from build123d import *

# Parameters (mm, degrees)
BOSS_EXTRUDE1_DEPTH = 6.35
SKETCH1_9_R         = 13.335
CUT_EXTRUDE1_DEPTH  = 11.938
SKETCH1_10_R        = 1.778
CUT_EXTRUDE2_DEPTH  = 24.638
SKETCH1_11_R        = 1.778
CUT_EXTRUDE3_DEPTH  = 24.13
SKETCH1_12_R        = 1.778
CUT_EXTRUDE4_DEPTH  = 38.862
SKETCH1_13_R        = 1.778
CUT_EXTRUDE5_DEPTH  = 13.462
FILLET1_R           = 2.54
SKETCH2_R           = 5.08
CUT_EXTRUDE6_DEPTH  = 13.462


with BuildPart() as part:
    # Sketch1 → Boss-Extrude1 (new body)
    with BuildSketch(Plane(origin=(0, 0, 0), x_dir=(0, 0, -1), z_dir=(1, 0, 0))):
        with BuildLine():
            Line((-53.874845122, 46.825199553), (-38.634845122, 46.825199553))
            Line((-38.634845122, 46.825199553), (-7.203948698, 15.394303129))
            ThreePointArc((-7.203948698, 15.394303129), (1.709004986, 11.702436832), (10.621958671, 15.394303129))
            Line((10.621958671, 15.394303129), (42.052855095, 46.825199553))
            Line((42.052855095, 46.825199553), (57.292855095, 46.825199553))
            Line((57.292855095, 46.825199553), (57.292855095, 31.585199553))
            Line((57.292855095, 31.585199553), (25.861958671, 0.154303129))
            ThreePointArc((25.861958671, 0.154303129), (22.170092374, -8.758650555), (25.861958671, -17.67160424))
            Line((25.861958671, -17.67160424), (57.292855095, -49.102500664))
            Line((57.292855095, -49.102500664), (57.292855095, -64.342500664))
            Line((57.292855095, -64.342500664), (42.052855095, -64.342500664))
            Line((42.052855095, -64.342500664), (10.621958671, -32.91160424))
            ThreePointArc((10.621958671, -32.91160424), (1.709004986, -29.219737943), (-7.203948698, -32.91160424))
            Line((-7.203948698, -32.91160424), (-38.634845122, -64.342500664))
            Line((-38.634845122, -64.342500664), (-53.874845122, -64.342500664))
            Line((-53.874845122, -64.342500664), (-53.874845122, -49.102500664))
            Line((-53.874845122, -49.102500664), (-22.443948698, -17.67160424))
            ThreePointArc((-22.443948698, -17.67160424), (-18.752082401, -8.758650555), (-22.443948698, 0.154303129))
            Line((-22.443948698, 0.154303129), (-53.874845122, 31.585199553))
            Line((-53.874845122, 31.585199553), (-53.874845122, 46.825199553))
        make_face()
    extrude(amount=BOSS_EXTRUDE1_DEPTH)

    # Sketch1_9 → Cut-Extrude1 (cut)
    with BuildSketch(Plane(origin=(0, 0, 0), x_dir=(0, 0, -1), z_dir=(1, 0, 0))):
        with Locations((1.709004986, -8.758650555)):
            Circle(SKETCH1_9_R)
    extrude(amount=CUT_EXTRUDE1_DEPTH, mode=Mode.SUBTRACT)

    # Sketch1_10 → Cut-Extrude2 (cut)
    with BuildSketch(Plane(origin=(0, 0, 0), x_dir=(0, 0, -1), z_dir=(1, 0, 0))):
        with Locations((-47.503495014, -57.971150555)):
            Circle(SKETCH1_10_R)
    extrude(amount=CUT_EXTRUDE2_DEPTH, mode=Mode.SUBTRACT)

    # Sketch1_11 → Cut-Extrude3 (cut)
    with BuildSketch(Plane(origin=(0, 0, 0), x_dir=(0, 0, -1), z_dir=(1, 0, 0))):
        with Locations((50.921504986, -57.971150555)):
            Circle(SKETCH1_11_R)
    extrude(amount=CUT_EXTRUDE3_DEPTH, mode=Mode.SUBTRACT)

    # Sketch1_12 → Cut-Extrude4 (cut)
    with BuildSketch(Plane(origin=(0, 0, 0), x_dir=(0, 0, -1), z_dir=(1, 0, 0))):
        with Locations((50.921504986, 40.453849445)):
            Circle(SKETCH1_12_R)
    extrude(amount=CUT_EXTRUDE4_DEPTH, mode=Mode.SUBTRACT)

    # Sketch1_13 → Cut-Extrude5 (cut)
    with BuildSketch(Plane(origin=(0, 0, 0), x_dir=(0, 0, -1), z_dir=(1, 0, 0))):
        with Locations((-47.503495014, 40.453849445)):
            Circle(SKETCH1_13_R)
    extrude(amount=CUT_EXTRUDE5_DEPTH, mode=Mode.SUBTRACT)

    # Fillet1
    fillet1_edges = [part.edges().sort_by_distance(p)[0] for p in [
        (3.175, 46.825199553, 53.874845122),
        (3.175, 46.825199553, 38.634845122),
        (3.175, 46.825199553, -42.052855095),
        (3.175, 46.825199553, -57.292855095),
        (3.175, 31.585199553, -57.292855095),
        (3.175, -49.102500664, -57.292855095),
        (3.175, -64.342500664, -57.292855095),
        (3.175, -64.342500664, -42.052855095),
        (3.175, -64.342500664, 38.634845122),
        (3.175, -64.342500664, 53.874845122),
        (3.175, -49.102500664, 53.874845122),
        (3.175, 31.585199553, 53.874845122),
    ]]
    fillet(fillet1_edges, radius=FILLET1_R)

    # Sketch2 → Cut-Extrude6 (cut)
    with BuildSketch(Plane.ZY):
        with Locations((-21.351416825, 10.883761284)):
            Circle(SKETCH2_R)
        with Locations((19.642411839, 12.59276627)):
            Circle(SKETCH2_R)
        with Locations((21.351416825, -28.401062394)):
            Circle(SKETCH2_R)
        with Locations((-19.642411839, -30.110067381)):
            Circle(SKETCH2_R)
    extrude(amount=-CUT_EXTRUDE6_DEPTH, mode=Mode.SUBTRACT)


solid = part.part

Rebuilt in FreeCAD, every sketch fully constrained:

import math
import FreeCAD as App
import Part
import Sketcher
Q = App.Units.Quantity


def edges_at(feature, points):
    """Names of the edges that pass closest to the given points."""
    edges = feature.Shape.Edges
    near = lambda p: min(range(len(edges)), key=lambda i: edges[i].distToShape(Part.Vertex(*p))[0])
    return sorted({f"Edge{near(p) + 1}" for p in points})

doc = App.newDocument("Part")
params = doc.addObject("Spreadsheet::Sheet", "Params")
for row, (alias, value) in enumerate([
    ("sketch1_width", "0.6 in"),
    ("sketch1_length", "1.75 in"),
    ("pad1_length", "0.25 in"),
    ("sketch2_diameter", "1.05 in"),
    ("pocket1_length", "0.47 in"),
    ("sketch3_diameter", "0.14 in"),
    ("pocket2_length", "0.97 in"),
    ("sketch4_diameter", "0.14 in"),
    ("pocket3_length", "0.95 in"),
    ("sketch5_diameter", "0.14 in"),
    ("pocket4_length", "1.53 in"),
    ("sketch6_diameter", "0.14 in"),
    ("pocket5_length", "0.53 in"),
    ("fillet_radius", "0.1 in"),
    ("sketch7_diameter", "0.4 in"),
    ("pocket6_length", "0.53 in"),
], start=1):
    params.set(f"A{row}", alias)
    params.set(f"B{row}", "=" + value)
    params.setAlias(f"B{row}", alias)

body = doc.addObject("PartDesign::Body", "Body")

sketch1 = body.newObject("Sketcher::SketchObject", "Sketch")
sketch1.AttachmentSupport = (doc.getObject("YZ_Plane"), [""])
sketch1.MapMode = "FlatFace"
sketch1.addGeometry(Part.LineSegment(App.Vector(47, 39, 0), App.Vector(47, 54, 0)), False)
sketch1.addGeometry(Part.LineSegment(App.Vector(47, 54, 0), App.Vector(32, 54, 0)), False)
sketch1.addGeometry(Part.LineSegment(App.Vector(32, 54, 0), App.Vector(0, 22, 0)), False)
sketch1.addGeometry(Part.ArcOfCircle(Part.Circle(App.Vector(-9, 31, 0), App.Vector(0, 0, 1), 13), math.radians(-135), math.radians(-45)), False)
sketch1.addGeometry(Part.LineSegment(App.Vector(-18, 22, 0), App.Vector(-49, 54, 0)), False)
sketch1.addGeometry(Part.LineSegment(App.Vector(-49, 54, 0), App.Vector(-64, 54, 0)), False)
sketch1.addGeometry(Part.LineSegment(App.Vector(-64, 54, 0), App.Vector(-64, 39, 0)), False)
sketch1.addGeometry(Part.LineSegment(App.Vector(-64, 39, 0), App.Vector(-33, 7, 0)), False)
sketch1.addGeometry(Part.ArcOfCircle(Part.Circle(App.Vector(-42, -2, 0), App.Vector(0, 0, 1), 13), math.radians(-45), math.radians(45)), False)
sketch1.addGeometry(Part.LineSegment(App.Vector(-33, -11, 0), App.Vector(-64, -42, 0)), False)
sketch1.addGeometry(Part.LineSegment(App.Vector(-64, -42, 0), App.Vector(-64, -57, 0)), False)
sketch1.addGeometry(Part.LineSegment(App.Vector(-64, -57, 0), App.Vector(-49, -57, 0)), False)
sketch1.addGeometry(Part.LineSegment(App.Vector(-49, -57, 0), App.Vector(-18, -26, 0)), False)
sketch1.addGeometry(Part.ArcOfCircle(Part.Circle(App.Vector(-9, -35, 0), App.Vector(0, 0, 1), 13), math.radians(45), math.radians(135)), False)
sketch1.addGeometry(Part.LineSegment(App.Vector(0, -26, 0), App.Vector(32, -57, 0)), False)
sketch1.addGeometry(Part.LineSegment(App.Vector(32, -57, 0), App.Vector(47, -57, 0)), False)
sketch1.addGeometry(Part.LineSegment(App.Vector(47, -57, 0), App.Vector(47, -42, 0)), False)
sketch1.addGeometry(Part.LineSegment(App.Vector(47, -42, 0), App.Vector(15, -11, 0)), False)
sketch1.addGeometry(Part.ArcOfCircle(Part.Circle(App.Vector(24, -2, 0), App.Vector(0, 0, 1), 13), math.radians(135), math.radians(225)), False)
sketch1.addGeometry(Part.LineSegment(App.Vector(15, 7, 0), App.Vector(47, 39, 0)), False)
sketch1.addConstraint(Sketcher.Constraint("Coincident", 0, 2, 1, 1))
sketch1.addConstraint(Sketcher.Constraint("Coincident", 1, 2, 2, 1))
sketch1.addConstraint(Sketcher.Constraint("Tangent", 2, 2, 3, 2))
sketch1.addConstraint(Sketcher.Constraint("Tangent", 3, 1, 4, 1))
sketch1.addConstraint(Sketcher.Constraint("Coincident", 4, 2, 5, 1))
sketch1.addConstraint(Sketcher.Constraint("Coincident", 5, 2, 6, 1))
sketch1.addConstraint(Sketcher.Constraint("Coincident", 6, 2, 7, 1))
sketch1.addConstraint(Sketcher.Constraint("Tangent", 7, 2, 8, 2))
sketch1.addConstraint(Sketcher.Constraint("Tangent", 8, 1, 9, 1))
sketch1.addConstraint(Sketcher.Constraint("Coincident", 9, 2, 10, 1))
sketch1.addConstraint(Sketcher.Constraint("Coincident", 10, 2, 11, 1))
sketch1.addConstraint(Sketcher.Constraint("Coincident", 11, 2, 12, 1))
sketch1.addConstraint(Sketcher.Constraint("Tangent", 12, 2, 13, 2))
sketch1.addConstraint(Sketcher.Constraint("Tangent", 13, 1, 14, 1))
sketch1.addConstraint(Sketcher.Constraint("Coincident", 14, 2, 15, 1))
sketch1.addConstraint(Sketcher.Constraint("Coincident", 15, 2, 16, 1))
sketch1.addConstraint(Sketcher.Constraint("Coincident", 16, 2, 17, 1))
sketch1.addConstraint(Sketcher.Constraint("Tangent", 17, 2, 18, 2))
sketch1.addConstraint(Sketcher.Constraint("Tangent", 18, 1, 19, 1))
sketch1.addConstraint(Sketcher.Constraint("Coincident", 19, 2, 0, 1))
sketch1.addConstraint(Sketcher.Constraint("Vertical", 0))
sketch1.addConstraint(Sketcher.Constraint("Horizontal", 1))
sketch1.addConstraint(Sketcher.Constraint("Horizontal", 5))
sketch1.addConstraint(Sketcher.Constraint("Vertical", 6))
sketch1.addConstraint(Sketcher.Constraint("Vertical", 10))
sketch1.addConstraint(Sketcher.Constraint("Horizontal", 11))
sketch1.addConstraint(Sketcher.Constraint("Horizontal", 15))
sketch1.addConstraint(Sketcher.Constraint("Vertical", 16))
sketch1.addConstraint(Sketcher.Constraint("Equal", 3, 8))
sketch1.addConstraint(Sketcher.Constraint("Equal", 8, 13))
sketch1.addConstraint(Sketcher.Constraint("Equal", 13, 18))
sketch1.addConstraint(Sketcher.Constraint("Perpendicular", 2, 4))
sketch1.addConstraint(Sketcher.Constraint("Parallel", 4, 7))
sketch1.addConstraint(Sketcher.Constraint("Perpendicular", 7, 9))
sketch1.addConstraint(Sketcher.Constraint("Parallel", 9, 12))
sketch1.addConstraint(Sketcher.Constraint("Perpendicular", 12, 14))
sketch1.addConstraint(Sketcher.Constraint("Parallel", 14, 17))
sketch1.addConstraint(Sketcher.Constraint("Perpendicular", 17, 19))
sketch1.addConstraint(Sketcher.Constraint("Horizontal", 8, 3, 18, 3))
sketch1.addConstraint(Sketcher.Constraint("Horizontal", 2, 2, 3, 1))
sketch1.addConstraint(Sketcher.Constraint("Horizontal", 1, 2, 4, 2))
sketch1.addConstraint(Sketcher.Constraint("Horizontal", 11, 2, 14, 2))
sketch1.addConstraint(Sketcher.Constraint("Horizontal", 9, 2, 16, 2))
sketch1.addConstraint(Sketcher.Constraint("Horizontal", 6, 2, 19, 2))
sketch1.addConstraint(Sketcher.Constraint("Vertical", 3, 3, 13, 3))
sketch1.addConstraint(Sketcher.Constraint("Vertical", 6, 2, 9, 2))
sketch1.addConstraint(Sketcher.Constraint("Vertical", 4, 2, 11, 2))
sketch1.addConstraint(Sketcher.Constraint("Equal", 1, 5))
sketch1.addConstraint(Sketcher.Constraint("Equal", 15, 0))
sketch1.addConstraint(Sketcher.Constraint("Equal", 6, 10))
sketch1.addConstraint(Sketcher.Constraint("Equal", 4, 7))
sketch1.addConstraint(Sketcher.Constraint("DistanceX", 1, 2, 1, 1, Q("0.6 in")))
sketch1.addConstraint(Sketcher.Constraint("Distance", 2, Q("1.75 in")))
sketch1.addConstraint(Sketcher.Constraint("Radius", 3, Q("12.60482 mm")))
sketch1.addConstraint(Sketcher.Constraint("DistanceX", -1, 1, 0, 2, Q("46.8252 mm")))
sketch1.addConstraint(Sketcher.Constraint("DistanceY", -1, 1, 2, 2, Q("22.443949 mm")))
sketch1.setExpression("Constraints[51]", "Params.sketch1_width")
sketch1.setExpression("Constraints[52]", "Params.sketch1_length")
pad1 = body.newObject("PartDesign::Pad", "Pad")
pad1.Profile = sketch1
pad1.setExpression("Length", "Params.pad1_length")

sketch2 = body.newObject("Sketcher::SketchObject", "Sketch001")
sketch2.AttachmentSupport = (doc.getObject("YZ_Plane"), [""])
sketch2.MapMode = "FlatFace"
sketch2.addGeometry(Part.Circle(App.Vector(-9, -2, 0), App.Vector(0, 0, 1), 13), False)
sketch2.addConstraint(Sketcher.Constraint("Diameter", 0, Q("1.05 in")))
sketch2.addConstraint(Sketcher.Constraint("DistanceX", 0, 3, -1, 1, Q("8.758651 mm")))
sketch2.addConstraint(Sketcher.Constraint("DistanceY", 0, 3, -1, 1, Q("1.709005 mm")))
sketch2.setExpression("Constraints[0]", "Params.sketch2_diameter")
pocket1 = body.newObject("PartDesign::Pocket", "Pocket")
pocket1.Profile = sketch2
pocket1.setExpression("Length", "Params.pocket1_length")
pocket1.Reversed = True

sketch3 = body.newObject("Sketcher::SketchObject", "Sketch002")
sketch3.AttachmentSupport = (doc.getObject("YZ_Plane"), [""])
sketch3.MapMode = "FlatFace"
sketch3.addGeometry(Part.Circle(App.Vector(-58, 47.5, 0), App.Vector(0, 0, 1), 1.8), False)
sketch3.addConstraint(Sketcher.Constraint("Diameter", 0, Q("0.14 in")))
sketch3.addConstraint(Sketcher.Constraint("DistanceX", 0, 3, -1, 1, Q("57.971151 mm")))
sketch3.addConstraint(Sketcher.Constraint("DistanceY", -1, 1, 0, 3, Q("47.503495 mm")))
sketch3.setExpression("Constraints[0]", "Params.sketch3_diameter")
pocket2 = body.newObject("PartDesign::Pocket", "Pocket001")
pocket2.Profile = sketch3
pocket2.setExpression("Length", "Params.pocket2_length")
pocket2.Reversed = True

sketch4 = body.newObject("Sketcher::SketchObject", "Sketch003")
sketch4.AttachmentSupport = (doc.getObject("YZ_Plane"), [""])
sketch4.MapMode = "FlatFace"
sketch4.addGeometry(Part.Circle(App.Vector(-58, -50.9, 0), App.Vector(0, 0, 1), 1.8), False)
sketch4.addConstraint(Sketcher.Constraint("Diameter", 0, Q("0.14 in")))
sketch4.addConstraint(Sketcher.Constraint("DistanceX", 0, 3, -1, 1, Q("57.971151 mm")))
sketch4.addConstraint(Sketcher.Constraint("DistanceY", 0, 3, -1, 1, Q("50.921505 mm")))
sketch4.setExpression("Constraints[0]", "Params.sketch4_diameter")
pocket3 = body.newObject("PartDesign::Pocket", "Pocket002")
pocket3.Profile = sketch4
pocket3.setExpression("Length", "Params.pocket3_length")
pocket3.Reversed = True

sketch5 = body.newObject("Sketcher::SketchObject", "Sketch004")
sketch5.AttachmentSupport = (doc.getObject("YZ_Plane"), [""])
sketch5.MapMode = "FlatFace"
sketch5.addGeometry(Part.Circle(App.Vector(40.5, -50.9, 0), App.Vector(0, 0, 1), 1.8), False)
sketch5.addConstraint(Sketcher.Constraint("Diameter", 0, Q("0.14 in")))
sketch5.addConstraint(Sketcher.Constraint("DistanceX", -1, 1, 0, 3, Q("40.453849 mm")))
sketch5.addConstraint(Sketcher.Constraint("DistanceY", 0, 3, -1, 1, Q("50.921505 mm")))
sketch5.setExpression("Constraints[0]", "Params.sketch5_diameter")
pocket4 = body.newObject("PartDesign::Pocket", "Pocket003")
pocket4.Profile = sketch5
pocket4.setExpression("Length", "Params.pocket4_length")
pocket4.Reversed = True

sketch6 = body.newObject("Sketcher::SketchObject", "Sketch005")
sketch6.AttachmentSupport = (doc.getObject("YZ_Plane"), [""])
sketch6.MapMode = "FlatFace"
sketch6.addGeometry(Part.Circle(App.Vector(40.5, 47.5, 0), App.Vector(0, 0, 1), 1.8), False)
sketch6.addConstraint(Sketcher.Constraint("Diameter", 0, Q("0.14 in")))
sketch6.addConstraint(Sketcher.Constraint("DistanceX", -1, 1, 0, 3, Q("40.453849 mm")))
sketch6.addConstraint(Sketcher.Constraint("DistanceY", -1, 1, 0, 3, Q("47.503495 mm")))
sketch6.setExpression("Constraints[0]", "Params.sketch6_diameter")
pocket5 = body.newObject("PartDesign::Pocket", "Pocket004")
pocket5.Profile = sketch6
pocket5.setExpression("Length", "Params.pocket5_length")
pocket5.Reversed = True
doc.recompute()

fillet = body.newObject("PartDesign::Fillet", "Fillet")
fillet.Base = (pocket5, edges_at(pocket5, [
    (3.175, 46.825, 53.875),
    (3.175, 46.825, 38.635),
    (3.175, 46.825, -42.053),
    (3.175, 46.825, -57.293),
    (3.175, 31.585, -57.293),
    (3.175, -49.103, -57.293),
    (3.175, -64.343, -57.293),
    (3.175, -64.343, -42.053),
    (3.175, -64.343, 38.635),
    (3.175, -64.343, 53.875),
    (3.175, -49.103, 53.875),
    (3.175, 31.585, 53.875),
]))
fillet.setExpression("Radius", "Params.fillet_radius")

sketch7 = body.newObject("Sketcher::SketchObject", "Sketch006")
sketch7.AttachmentSupport = (doc.getObject("YZ_Plane"), [""])
sketch7.MapMode = "FlatFace"
sketch7.addGeometry(Part.Circle(App.Vector(11, -21, 0), App.Vector(0, 0, 1), 5), False)
sketch7.addGeometry(Part.Circle(App.Vector(13, 20, 0), App.Vector(0, 0, 1), 5), False)
sketch7.addGeometry(Part.Circle(App.Vector(-28, 21, 0), App.Vector(0, 0, 1), 5), False)
sketch7.addGeometry(Part.Circle(App.Vector(-30, -20, 0), App.Vector(0, 0, 1), 5), False)
sketch7.addConstraint(Sketcher.Constraint("Equal", 0, 1))
sketch7.addConstraint(Sketcher.Constraint("Equal", 1, 2))
sketch7.addConstraint(Sketcher.Constraint("Equal", 2, 3))
sketch7.addConstraint(Sketcher.Constraint("Diameter", 0, Q("0.4 in")))
sketch7.addConstraint(Sketcher.Constraint("DistanceX", -1, 1, 0, 3, Q("10.883761 mm")))
sketch7.addConstraint(Sketcher.Constraint("DistanceY", -1, 1, 1, 3, Q("19.642412 mm")))
sketch7.addConstraint(Sketcher.Constraint("DistanceY", 3, 3, -1, 1, Q("19.642412 mm")))
sketch7.addConstraint(Sketcher.Constraint("DistanceY", 0, 3, 1, 3, Q("40.993829 mm")))
sketch7.addConstraint(Sketcher.Constraint("DistanceX", 2, 3, 1, 3, Q("40.993829 mm")))
sketch7.addConstraint(Sketcher.Constraint("DistanceY", 3, 3, 2, 3, Q("40.993829 mm")))
sketch7.addConstraint(Sketcher.Constraint("DistanceX", 3, 3, 0, 3, Q("40.993829 mm")))
sketch7.addConstraint(Sketcher.Constraint("DistanceX", -1, 1, 1, 3, Q("12.592766 mm")))
sketch7.setExpression("Constraints[3]", "Params.sketch7_diameter")
pocket6 = body.newObject("PartDesign::Pocket", "Pocket005")
pocket6.Profile = sketch7
pocket6.setExpression("Length", "Params.pocket6_length")
pocket6.Reversed = True

doc.recompute()
